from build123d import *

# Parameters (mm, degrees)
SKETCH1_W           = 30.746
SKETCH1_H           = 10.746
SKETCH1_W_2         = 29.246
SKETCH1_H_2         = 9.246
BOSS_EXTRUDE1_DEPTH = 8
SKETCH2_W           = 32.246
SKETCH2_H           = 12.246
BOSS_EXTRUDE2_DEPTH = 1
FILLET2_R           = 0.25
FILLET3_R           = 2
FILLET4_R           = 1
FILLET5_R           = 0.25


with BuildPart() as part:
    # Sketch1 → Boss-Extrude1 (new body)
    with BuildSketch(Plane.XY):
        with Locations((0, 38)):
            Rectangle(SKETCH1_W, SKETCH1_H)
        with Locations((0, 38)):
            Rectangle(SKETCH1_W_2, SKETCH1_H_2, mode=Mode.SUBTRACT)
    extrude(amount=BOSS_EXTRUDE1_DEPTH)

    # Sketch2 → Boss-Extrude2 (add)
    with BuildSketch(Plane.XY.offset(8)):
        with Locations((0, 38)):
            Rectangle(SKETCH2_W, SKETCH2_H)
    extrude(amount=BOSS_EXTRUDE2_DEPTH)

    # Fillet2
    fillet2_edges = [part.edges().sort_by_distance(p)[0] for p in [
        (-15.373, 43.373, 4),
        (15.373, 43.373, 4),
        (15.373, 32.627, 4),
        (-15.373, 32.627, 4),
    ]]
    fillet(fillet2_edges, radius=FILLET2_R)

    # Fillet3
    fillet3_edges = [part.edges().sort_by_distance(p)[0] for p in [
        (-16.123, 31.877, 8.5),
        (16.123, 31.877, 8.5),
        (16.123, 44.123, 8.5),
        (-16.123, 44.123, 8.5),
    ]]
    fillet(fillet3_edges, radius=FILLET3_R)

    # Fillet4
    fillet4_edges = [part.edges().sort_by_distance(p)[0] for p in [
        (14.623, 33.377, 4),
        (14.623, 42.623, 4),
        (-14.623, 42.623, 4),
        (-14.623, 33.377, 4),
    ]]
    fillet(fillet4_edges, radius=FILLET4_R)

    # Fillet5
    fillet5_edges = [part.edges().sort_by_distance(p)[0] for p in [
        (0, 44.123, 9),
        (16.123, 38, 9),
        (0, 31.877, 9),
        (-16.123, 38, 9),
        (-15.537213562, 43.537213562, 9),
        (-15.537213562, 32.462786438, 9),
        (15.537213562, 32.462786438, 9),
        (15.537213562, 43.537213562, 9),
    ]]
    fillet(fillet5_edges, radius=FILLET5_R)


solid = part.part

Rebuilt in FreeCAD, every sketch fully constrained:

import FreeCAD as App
import Part
import Sketcher

V = App.Vector


def edges_at(feature, points):
    """Names of the edges that pass closest to the given points."""
    edges = feature.Shape.Edges
    near = lambda p: min(range(len(edges)), key=lambda i: edges[i].distToShape(Part.Vertex(*p))[0])
    return sorted({f"Edge{near(p) + 1}" for p in points})

doc = App.newDocument("Part")
params = doc.addObject("Spreadsheet::Sheet", "Params")
for row, (alias, value) in enumerate([
    ("pad1_length", "8 mm"),
    ("pad2_length", "1 mm"),
    ("fillet_radius", "0.25 mm"),
    ("fillet2_radius", "2 mm"),
    ("fillet3_radius", "1 mm"),
    ("fillet4_radius", "0.25 mm"),
], start=1):
    params.set(f"A{row}", alias)
    params.set(f"B{row}", "=" + value)
    params.setAlias(f"B{row}", alias)

body = doc.addObject("PartDesign::Body", "Body")

# Sketch on XY plane
sketch1 = body.newObject("Sketcher::SketchObject", "Sketch")
sketch1.AttachmentSupport = (doc.getObject("XY_Plane"), [""])
sketch1.MapMode = "FlatFace"
sketch1.addGeometry([
    Part.LineSegment(V(-15, 43, 0), V(-15, 33, 0)),  # 0
    Part.LineSegment(V(-15, 33, 0), V(15, 33, 0)),  # 1
    Part.LineSegment(V(15, 33, 0), V(15, 43, 0)),  # 2
    Part.LineSegment(V(15, 43, 0), V(-15, 43, 0)),  # 3
    Part.LineSegment(V(15, 33, 0), V(-15, 33, 0)),  # 4
    Part.LineSegment(V(-15, 33, 0), V(-15, 43, 0)),  # 5
    Part.LineSegment(V(-15, 43, 0), V(15, 43, 0)),  # 6
    Part.LineSegment(V(15, 43, 0), V(15, 33, 0)),  # 7
], False)
sketch1.addConstraint([
    Sketcher.Constraint("Coincident", 0, 2, 1, 1),
    Sketcher.Constraint("Coincident", 1, 2, 2, 1),
    Sketcher.Constraint("Coincident", 2, 2, 3, 1),
    Sketcher.Constraint("Coincident", 3, 2, 0, 1),
    Sketcher.Constraint("Coincident", 4, 2, 5, 1),
    Sketcher.Constraint("Coincident", 5, 2, 6, 1),
    Sketcher.Constraint("Coincident", 6, 2, 7, 1),
    Sketcher.Constraint("Coincident", 7, 2, 4, 1),
    Sketcher.Constraint("Vertical", 0),
    Sketcher.Constraint("Horizontal", 1),
    Sketcher.Constraint("Vertical", 2),
    Sketcher.Constraint("Horizontal", 3),
    Sketcher.Constraint("Horizontal", 4),
    Sketcher.Constraint("Vertical", 5),
    Sketcher.Constraint("Horizontal", 6),
    Sketcher.Constraint("Vertical", 7),
    Sketcher.Constraint("DistanceX", 1, 1, 1, 2, 30.746),
    Sketcher.Constraint("DistanceX", 4, 2, 4, 1, 29.246),
    Sketcher.Constraint("DistanceY", 0, 2, 0, 1, 10.746),
    Sketcher.Constraint("DistanceY", 5, 1, 5, 2, 9.246),
    Sketcher.Constraint("DistanceX", 0, 2, 4, 2, 0.75),
    Sketcher.Constraint("DistanceY", 0, 2, 4, 2, 0.75),
    Sketcher.Constraint("DistanceX", 0, 2, -1, 1, 15.373),
    Sketcher.Constraint("DistanceY", -1, 1, 0, 2, 32.627),
])
pad1 = body.newObject("PartDesign::Pad", "Pad")
pad1.Profile = sketch1
pad1.setExpression("Length", "Params.pad1_length")

# Sketch on XY plane
sketch2 = body.newObject("Sketcher::SketchObject", "Sketch001")
sketch2.AttachmentSupport = (doc.getObject("XY_Plane"), [""])
sketch2.MapMode = "FlatFace"
sketch2.AttachmentOffset = App.Placement(V(0, 0, 8), App.Rotation())
sketch2.addGeometry([
    Part.LineSegment(V(-16, 44, 0), V(-16, 32, 0)),
    Part.LineSegment(V(-16, 32, 0), V(16, 32, 0)),
    Part.LineSegment(V(16, 32, 0), V(16, 44, 0)),
    Part.LineSegment(V(16, 44, 0), V(-16, 44, 0)),
], False)
sketch2.addConstraint([
    Sketcher.Constraint("Coincident", 0, 2, 1, 1),
    Sketcher.Constraint("Coincident", 1, 2, 2, 1),
    Sketcher.Constraint("Coincident", 2, 2, 3, 1),
    Sketcher.Constraint("Coincident", 3, 2, 0, 1),
    Sketcher.Constraint("Vertical", 0),
    Sketcher.Constraint("Horizontal", 1),
    Sketcher.Constraint("Vertical", 2),
    Sketcher.Constraint("Horizontal", 3),
    Sketcher.Constraint("DistanceX", 1, 1, 1, 2, 32.246),
    Sketcher.Constraint("DistanceY", 0, 2, 0, 1, 12.246),
    Sketcher.Constraint("DistanceX", 0, 2, -1, 1, 16.123),
    Sketcher.Constraint("DistanceY", -1, 1, 0, 2, 31.877),
])
pad2 = body.newObject("PartDesign::Pad", "Pad001")
pad2.Profile = sketch2
pad2.setExpression("Length", "Params.pad2_length")
doc.recompute()

fillet = body.newObject("PartDesign::Fillet", "Fillet")
fillet.Base = (pad2, edges_at(pad2, [
    (-15.373, 43.373, 4),
    (15.373, 43.373, 4),
    (15.373, 32.627, 4),
    (-15.373, 32.627, 4),
]))
fillet.setExpression("Radius", "Params.fillet_radius")
doc.recompute()

fillet2 = body.newObject("PartDesign::Fillet", "Fillet001")
fillet2.Base = (fillet, edges_at(fillet, [
    (-16.123, 31.877, 8.5),
    (16.123, 31.877, 8.5),
    (16.123, 44.123, 8.5),
    (-16.123, 44.123, 8.5),
]))
fillet2.setExpression("Radius", "Params.fillet2_radius")
doc.recompute()

fillet3 = body.newObject("PartDesign::Fillet", "Fillet002")
fillet3.Base = (fillet2, edges_at(fillet2, [
    (14.623, 33.377, 4),
    (14.623, 42.623, 4),
    (-14.623, 42.623, 4),
    (-14.623, 33.377, 4),
]))
fillet3.setExpression("Radius", "Params.fillet3_radius")
doc.recompute()

fillet4 = body.newObject("PartDesign::Fillet", "Fillet003")
fillet4.Base = (fillet3, edges_at(fillet3, [
    (0, 44.123, 9),
    (16.123, 38, 9),
    (0, 31.877, 9),
    (-16.123, 38, 9),
    (-15.537, 43.537, 9),
    (-15.537, 32.463, 9),
    (15.537, 32.463, 9),
    (15.537, 43.537, 9),
]))
fillet4.setExpression("Radius", "Params.fillet4_radius")

doc.recompute()
